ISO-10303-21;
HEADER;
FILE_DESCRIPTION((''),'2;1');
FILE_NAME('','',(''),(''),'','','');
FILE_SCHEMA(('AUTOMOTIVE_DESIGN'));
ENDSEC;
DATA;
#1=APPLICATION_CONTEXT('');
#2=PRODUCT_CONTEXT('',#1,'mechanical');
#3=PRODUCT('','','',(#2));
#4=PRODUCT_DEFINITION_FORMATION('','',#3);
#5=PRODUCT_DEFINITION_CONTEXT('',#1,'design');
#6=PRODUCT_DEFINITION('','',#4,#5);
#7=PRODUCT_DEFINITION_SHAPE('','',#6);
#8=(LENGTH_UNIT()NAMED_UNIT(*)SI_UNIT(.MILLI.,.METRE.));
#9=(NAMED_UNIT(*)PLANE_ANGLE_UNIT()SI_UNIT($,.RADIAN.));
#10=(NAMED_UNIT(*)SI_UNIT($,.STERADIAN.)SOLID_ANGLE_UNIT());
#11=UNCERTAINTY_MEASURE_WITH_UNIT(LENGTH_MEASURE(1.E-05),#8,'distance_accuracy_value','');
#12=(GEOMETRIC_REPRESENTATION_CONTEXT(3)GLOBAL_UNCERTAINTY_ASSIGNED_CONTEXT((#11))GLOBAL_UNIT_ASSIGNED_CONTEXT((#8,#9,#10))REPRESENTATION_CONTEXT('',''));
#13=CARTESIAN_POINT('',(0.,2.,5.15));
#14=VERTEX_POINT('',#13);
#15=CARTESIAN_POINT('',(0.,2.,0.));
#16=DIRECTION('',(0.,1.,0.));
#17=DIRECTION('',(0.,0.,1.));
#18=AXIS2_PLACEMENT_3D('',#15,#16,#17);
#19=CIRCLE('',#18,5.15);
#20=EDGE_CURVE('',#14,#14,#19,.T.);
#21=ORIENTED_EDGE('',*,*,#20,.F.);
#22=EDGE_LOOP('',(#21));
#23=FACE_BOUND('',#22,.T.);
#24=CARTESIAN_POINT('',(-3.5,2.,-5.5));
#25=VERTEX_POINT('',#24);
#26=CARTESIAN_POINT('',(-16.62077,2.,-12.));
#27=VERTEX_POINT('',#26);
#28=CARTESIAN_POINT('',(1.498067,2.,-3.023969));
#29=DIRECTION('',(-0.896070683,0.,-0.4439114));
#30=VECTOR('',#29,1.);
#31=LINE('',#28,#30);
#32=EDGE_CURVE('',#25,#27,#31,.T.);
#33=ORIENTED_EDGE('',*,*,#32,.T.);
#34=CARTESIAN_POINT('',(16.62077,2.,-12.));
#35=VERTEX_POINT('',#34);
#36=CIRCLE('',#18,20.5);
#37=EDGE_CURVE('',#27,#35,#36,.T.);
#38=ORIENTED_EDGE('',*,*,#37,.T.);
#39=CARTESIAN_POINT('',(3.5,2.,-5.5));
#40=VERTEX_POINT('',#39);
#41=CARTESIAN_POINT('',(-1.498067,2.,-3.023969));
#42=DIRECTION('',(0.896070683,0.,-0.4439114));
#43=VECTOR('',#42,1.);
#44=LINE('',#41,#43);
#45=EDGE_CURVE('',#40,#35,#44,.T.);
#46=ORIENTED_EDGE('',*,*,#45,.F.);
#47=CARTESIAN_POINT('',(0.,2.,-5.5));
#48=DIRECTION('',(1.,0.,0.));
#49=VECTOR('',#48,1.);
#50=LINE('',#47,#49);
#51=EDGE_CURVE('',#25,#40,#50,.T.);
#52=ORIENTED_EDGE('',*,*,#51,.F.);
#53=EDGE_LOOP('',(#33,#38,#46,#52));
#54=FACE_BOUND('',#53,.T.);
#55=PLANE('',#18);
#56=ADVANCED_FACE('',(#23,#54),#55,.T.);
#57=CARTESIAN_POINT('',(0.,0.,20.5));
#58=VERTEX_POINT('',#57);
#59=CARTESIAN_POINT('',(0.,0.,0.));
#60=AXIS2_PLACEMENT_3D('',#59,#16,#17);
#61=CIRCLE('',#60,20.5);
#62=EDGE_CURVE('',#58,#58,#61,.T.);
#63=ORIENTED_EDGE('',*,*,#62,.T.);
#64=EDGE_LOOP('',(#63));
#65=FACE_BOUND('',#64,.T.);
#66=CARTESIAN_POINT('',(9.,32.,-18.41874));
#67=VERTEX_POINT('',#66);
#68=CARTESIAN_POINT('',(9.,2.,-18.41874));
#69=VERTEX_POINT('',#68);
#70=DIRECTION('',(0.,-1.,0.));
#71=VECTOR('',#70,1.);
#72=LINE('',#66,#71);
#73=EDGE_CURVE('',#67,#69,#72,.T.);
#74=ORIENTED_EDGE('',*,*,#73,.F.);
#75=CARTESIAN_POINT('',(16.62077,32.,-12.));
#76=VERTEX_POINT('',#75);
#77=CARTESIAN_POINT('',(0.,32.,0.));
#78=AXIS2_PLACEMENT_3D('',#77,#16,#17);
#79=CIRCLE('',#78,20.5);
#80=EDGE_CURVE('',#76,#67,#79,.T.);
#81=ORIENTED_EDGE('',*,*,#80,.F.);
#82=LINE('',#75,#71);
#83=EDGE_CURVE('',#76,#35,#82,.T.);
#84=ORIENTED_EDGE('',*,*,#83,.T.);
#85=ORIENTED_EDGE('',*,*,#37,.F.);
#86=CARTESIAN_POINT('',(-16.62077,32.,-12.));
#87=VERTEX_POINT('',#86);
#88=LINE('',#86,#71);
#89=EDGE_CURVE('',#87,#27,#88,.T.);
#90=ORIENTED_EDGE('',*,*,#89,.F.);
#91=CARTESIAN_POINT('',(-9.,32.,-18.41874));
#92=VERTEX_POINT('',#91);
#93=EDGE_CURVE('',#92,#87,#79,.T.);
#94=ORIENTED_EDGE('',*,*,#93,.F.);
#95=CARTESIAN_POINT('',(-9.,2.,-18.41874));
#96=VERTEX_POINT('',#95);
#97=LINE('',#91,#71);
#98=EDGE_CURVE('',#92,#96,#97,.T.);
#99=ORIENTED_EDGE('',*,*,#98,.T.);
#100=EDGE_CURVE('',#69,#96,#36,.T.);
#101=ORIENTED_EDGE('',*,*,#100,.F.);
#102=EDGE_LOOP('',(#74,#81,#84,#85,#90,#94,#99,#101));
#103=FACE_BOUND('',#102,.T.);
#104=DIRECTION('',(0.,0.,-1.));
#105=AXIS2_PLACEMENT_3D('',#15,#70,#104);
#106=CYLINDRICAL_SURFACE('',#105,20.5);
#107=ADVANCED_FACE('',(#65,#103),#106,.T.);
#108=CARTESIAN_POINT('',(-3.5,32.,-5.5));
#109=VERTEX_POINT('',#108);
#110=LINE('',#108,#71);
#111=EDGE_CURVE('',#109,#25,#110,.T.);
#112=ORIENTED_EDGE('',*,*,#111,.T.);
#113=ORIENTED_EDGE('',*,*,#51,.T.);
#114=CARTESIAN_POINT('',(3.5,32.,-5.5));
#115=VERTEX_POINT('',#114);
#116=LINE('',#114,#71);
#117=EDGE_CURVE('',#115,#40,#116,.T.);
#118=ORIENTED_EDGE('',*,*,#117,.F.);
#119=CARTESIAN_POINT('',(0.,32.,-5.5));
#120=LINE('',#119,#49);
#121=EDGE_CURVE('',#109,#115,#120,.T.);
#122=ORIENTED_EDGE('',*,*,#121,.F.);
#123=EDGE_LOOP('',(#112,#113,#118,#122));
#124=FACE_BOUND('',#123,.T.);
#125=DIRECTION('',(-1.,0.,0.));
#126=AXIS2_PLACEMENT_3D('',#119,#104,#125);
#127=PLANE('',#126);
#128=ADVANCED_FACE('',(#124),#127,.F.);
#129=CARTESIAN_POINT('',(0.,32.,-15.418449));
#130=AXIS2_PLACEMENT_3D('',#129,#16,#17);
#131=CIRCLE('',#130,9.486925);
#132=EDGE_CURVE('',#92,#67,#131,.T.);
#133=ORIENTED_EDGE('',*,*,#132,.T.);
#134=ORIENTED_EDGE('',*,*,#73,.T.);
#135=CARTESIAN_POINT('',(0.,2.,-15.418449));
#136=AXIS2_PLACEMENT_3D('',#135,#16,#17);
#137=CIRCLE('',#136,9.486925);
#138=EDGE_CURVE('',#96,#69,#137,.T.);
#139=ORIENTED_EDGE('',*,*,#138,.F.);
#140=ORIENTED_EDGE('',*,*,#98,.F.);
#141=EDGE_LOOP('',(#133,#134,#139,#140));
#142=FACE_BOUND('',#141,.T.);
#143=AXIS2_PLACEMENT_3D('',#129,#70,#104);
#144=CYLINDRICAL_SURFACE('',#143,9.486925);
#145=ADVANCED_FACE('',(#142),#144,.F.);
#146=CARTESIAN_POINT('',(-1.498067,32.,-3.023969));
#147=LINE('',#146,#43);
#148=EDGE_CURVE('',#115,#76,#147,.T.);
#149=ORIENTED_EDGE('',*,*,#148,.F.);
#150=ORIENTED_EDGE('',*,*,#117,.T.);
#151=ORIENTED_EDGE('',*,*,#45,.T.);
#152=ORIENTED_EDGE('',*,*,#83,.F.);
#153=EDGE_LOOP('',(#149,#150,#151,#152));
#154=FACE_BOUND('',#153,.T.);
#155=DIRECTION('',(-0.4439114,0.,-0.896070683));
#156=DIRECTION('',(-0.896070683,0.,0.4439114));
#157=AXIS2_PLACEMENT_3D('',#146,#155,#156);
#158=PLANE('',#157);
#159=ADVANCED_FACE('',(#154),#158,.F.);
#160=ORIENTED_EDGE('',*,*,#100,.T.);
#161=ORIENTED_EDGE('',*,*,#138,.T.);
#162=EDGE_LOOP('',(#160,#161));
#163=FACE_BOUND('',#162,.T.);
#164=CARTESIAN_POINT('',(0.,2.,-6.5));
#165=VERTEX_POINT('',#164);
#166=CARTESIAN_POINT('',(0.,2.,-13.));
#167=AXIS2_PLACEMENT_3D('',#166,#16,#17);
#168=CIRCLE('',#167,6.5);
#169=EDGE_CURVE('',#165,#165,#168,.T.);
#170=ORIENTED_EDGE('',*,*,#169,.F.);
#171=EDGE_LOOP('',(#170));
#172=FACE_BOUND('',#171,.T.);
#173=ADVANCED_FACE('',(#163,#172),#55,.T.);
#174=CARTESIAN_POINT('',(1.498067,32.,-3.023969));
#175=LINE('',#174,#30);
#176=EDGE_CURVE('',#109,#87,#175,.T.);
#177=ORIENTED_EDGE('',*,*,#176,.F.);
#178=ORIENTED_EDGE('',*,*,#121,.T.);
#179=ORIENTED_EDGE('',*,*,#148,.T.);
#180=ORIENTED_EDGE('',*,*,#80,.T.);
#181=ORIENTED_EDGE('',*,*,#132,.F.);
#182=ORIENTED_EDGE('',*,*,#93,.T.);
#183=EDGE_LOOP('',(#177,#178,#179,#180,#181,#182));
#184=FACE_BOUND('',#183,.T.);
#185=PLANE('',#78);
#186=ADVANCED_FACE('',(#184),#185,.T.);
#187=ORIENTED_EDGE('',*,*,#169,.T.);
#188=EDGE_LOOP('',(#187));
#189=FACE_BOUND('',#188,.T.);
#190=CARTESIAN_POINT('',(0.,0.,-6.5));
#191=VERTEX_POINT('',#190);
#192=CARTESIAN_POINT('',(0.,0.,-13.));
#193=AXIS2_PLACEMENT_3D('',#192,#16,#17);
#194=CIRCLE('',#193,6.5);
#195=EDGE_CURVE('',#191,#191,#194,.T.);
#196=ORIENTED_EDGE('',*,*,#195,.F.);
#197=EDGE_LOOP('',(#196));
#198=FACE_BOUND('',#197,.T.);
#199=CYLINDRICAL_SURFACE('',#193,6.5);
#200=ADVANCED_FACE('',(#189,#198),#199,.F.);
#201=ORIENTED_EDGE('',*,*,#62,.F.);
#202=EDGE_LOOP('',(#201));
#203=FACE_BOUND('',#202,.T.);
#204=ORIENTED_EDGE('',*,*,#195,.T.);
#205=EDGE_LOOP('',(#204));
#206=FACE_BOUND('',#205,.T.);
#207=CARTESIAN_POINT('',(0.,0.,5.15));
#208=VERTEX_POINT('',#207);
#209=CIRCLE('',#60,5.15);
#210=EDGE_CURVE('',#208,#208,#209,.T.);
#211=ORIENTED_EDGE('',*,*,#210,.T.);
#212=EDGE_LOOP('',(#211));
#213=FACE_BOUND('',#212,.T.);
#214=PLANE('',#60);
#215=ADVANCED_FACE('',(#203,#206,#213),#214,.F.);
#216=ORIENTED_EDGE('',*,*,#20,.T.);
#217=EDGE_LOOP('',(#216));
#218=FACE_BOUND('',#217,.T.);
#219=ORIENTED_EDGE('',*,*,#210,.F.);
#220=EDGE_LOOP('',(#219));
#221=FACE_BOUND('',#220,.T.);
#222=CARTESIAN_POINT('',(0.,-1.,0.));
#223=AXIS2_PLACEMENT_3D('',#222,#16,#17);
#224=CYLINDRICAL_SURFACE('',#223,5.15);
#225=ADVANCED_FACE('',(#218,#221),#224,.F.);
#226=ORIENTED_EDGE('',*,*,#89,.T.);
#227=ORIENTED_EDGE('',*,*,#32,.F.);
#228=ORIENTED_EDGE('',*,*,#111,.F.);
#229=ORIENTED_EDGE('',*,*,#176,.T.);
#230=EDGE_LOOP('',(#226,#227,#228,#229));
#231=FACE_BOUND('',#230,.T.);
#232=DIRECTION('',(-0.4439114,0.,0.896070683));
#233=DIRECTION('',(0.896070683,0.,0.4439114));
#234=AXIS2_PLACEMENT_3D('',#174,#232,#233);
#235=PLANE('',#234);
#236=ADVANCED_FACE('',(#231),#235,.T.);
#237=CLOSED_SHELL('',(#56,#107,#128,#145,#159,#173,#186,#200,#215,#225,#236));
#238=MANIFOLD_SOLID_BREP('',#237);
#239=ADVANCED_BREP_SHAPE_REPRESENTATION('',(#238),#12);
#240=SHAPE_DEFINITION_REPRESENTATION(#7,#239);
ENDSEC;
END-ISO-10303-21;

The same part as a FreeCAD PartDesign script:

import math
import FreeCAD as App
import Part
import Sketcher

V = App.Vector

doc = App.newDocument("Part")
body = doc.addObject("PartDesign::Body", "Body")

# Sketch on XZ plane
sketch1 = body.newObject("Sketcher::SketchObject", "Sketch")
sketch1.AttachmentSupport = (doc.getObject("XZ_Plane"), [""])
sketch1.MapMode = "FlatFace"
sketch1.addGeometry(Part.Circle(V(0, 0, 0), V(0, 0, 1), 20), False)
sketch1.addConstraint(Sketcher.Constraint("Coincident", 0, 3, -1, 1))
sketch1.addConstraint(Sketcher.Constraint("Diameter", 0, 41.0))
pad1 = body.newObject("PartDesign::Pad", "Pad")
pad1.Profile = sketch1
pad1.Length = 2
pad1.Reversed = True

# Sketch on XZ plane
sketch2 = body.newObject("Sketcher::SketchObject", "Sketch001")
sketch2.AttachmentSupport = (doc.getObject("XZ_Plane"), [""])
sketch2.MapMode = "FlatFace"
sketch2.AttachmentOffset = App.Placement(V(0, 0, -2), App.Rotation())
sketch2.addGeometry(Part.Circle(V(0, 0, 0), V(0, 0, 1), 5), False)
sketch2.addConstraint(Sketcher.Constraint("Coincident", 0, 3, -1, 1))
sketch2.addConstraint(Sketcher.Constraint("Diameter", 0, 10.3))
pocket1 = body.newObject("PartDesign::Pocket", "Pocket")
pocket1.Profile = sketch2
pocket1.Length = 3
pocket1.Reversed = True

# Sketch on XZ plane
sketch3 = body.newObject("Sketcher::SketchObject", "Sketch002")
sketch3.AttachmentSupport = (doc.getObject("XZ_Plane"), [""])
sketch3.MapMode = "FlatFace"
sketch3.AttachmentOffset = App.Placement(V(0, 0, -2), App.Rotation())
sketch3.addGeometry(Part.Circle(V(0, -13, 0), V(0, 0, 1), 6), False)
sketch3.addConstraint(Sketcher.Constraint("PointOnObject", 0, 3, -2))
sketch3.addConstraint(Sketcher.Constraint("Diameter", 0, 13.0))
sketch3.addConstraint(Sketcher.Constraint("DistanceY", 0, 3, -1, 1, 13.0))
pocket2 = body.newObject("PartDesign::Pocket", "Pocket001")
pocket2.Profile = sketch3
pocket2.Length = 2
pocket2.Reversed = True

# Sketch on XZ plane
sketch4 = body.newObject("Sketcher::SketchObject", "Sketch003")
sketch4.AttachmentSupport = (doc.getObject("XZ_Plane"), [""])
sketch4.MapMode = "FlatFace"
sketch4.AttachmentOffset = App.Placement(V(0, 0, -2), App.Rotation())
sketch4.addGeometry(Part.LineSegment(V(-17, -12, 0), V(-4, -6, 0)), False)
sketch4.addGeometry(Part.LineSegment(V(-4, -6, 0), V(4, -6, 0)), False)
sketch4.addGeometry(Part.LineSegment(V(4, -6, 0), V(17, -12, 0)), False)
sketch4.addGeometry(Part.ArcOfCircle(Part.Circle(V(0, 0, 0), V(0, 0, 1), 20), math.radians(-64), math.radians(-36)), False)
sketch4.addGeometry(Part.ArcOfCircle(Part.Circle(V(0, -15, 0), V(0, 0, 1), 9), math.radians(-18), math.radians(198)), False)
sketch4.addGeometry(Part.ArcOfCircle(Part.Circle(V(0, 0, 0), V(0, 0, 1), 20), math.radians(-144), math.radians(-116)), False)
sketch4.addConstraint(Sketcher.Constraint("Coincident", 0, 2, 1, 1))
sketch4.addConstraint(Sketcher.Constraint("Coincident", 1, 2, 2, 1))
sketch4.addConstraint(Sketcher.Constraint("Coincident", 2, 2, 3, 2))
sketch4.addConstraint(Sketcher.Constraint("Coincident", 3, 1, 4, 1))
sketch4.addConstraint(Sketcher.Constraint("Coincident", 4, 2, 5, 2))
sketch4.addConstraint(Sketcher.Constraint("Coincident", 5, 1, 0, 1))
sketch4.addConstraint(Sketcher.Constraint("Horizontal", 1))
sketch4.addConstraint(Sketcher.Constraint("Coincident", 3, 3, -1, 1))
sketch4.addConstraint(Sketcher.Constraint("Coincident", 5, 3, -1, 1))
sketch4.addConstraint(Sketcher.Constraint("Equal", 3, 5))
sketch4.addConstraint(Sketcher.Constraint("PointOnObject", 4, 3, -2))
sketch4.addConstraint(Sketcher.Constraint("Horizontal", 2, 2, 5, 1))
sketch4.addConstraint(Sketcher.Constraint("Equal", 0, 2))
sketch4.addConstraint(Sketcher.Constraint("Radius", 3, 20.5))
sketch4.addConstraint(Sketcher.Constraint("DistanceX", 1, 1, 1, 2, 7.0))
sketch4.addConstraint(Sketcher.Constraint("DistanceY", 2, 2, -1, 1, 12.0))
sketch4.addConstraint(Sketcher.Constraint("DistanceX", -1, 1, 3, 1, 9.0))
sketch4.addConstraint(Sketcher.Constraint("DistanceY", 0, 2, -1, 1, 5.5))
sketch4.addConstraint(Sketcher.Constraint("Radius", 4, 9.486925))
pad2 = body.newObject("PartDesign::Pad", "Pad001")
pad2.Profile = sketch4
pad2.Length = 30
pad2.Reversed = True

doc.recompute()
